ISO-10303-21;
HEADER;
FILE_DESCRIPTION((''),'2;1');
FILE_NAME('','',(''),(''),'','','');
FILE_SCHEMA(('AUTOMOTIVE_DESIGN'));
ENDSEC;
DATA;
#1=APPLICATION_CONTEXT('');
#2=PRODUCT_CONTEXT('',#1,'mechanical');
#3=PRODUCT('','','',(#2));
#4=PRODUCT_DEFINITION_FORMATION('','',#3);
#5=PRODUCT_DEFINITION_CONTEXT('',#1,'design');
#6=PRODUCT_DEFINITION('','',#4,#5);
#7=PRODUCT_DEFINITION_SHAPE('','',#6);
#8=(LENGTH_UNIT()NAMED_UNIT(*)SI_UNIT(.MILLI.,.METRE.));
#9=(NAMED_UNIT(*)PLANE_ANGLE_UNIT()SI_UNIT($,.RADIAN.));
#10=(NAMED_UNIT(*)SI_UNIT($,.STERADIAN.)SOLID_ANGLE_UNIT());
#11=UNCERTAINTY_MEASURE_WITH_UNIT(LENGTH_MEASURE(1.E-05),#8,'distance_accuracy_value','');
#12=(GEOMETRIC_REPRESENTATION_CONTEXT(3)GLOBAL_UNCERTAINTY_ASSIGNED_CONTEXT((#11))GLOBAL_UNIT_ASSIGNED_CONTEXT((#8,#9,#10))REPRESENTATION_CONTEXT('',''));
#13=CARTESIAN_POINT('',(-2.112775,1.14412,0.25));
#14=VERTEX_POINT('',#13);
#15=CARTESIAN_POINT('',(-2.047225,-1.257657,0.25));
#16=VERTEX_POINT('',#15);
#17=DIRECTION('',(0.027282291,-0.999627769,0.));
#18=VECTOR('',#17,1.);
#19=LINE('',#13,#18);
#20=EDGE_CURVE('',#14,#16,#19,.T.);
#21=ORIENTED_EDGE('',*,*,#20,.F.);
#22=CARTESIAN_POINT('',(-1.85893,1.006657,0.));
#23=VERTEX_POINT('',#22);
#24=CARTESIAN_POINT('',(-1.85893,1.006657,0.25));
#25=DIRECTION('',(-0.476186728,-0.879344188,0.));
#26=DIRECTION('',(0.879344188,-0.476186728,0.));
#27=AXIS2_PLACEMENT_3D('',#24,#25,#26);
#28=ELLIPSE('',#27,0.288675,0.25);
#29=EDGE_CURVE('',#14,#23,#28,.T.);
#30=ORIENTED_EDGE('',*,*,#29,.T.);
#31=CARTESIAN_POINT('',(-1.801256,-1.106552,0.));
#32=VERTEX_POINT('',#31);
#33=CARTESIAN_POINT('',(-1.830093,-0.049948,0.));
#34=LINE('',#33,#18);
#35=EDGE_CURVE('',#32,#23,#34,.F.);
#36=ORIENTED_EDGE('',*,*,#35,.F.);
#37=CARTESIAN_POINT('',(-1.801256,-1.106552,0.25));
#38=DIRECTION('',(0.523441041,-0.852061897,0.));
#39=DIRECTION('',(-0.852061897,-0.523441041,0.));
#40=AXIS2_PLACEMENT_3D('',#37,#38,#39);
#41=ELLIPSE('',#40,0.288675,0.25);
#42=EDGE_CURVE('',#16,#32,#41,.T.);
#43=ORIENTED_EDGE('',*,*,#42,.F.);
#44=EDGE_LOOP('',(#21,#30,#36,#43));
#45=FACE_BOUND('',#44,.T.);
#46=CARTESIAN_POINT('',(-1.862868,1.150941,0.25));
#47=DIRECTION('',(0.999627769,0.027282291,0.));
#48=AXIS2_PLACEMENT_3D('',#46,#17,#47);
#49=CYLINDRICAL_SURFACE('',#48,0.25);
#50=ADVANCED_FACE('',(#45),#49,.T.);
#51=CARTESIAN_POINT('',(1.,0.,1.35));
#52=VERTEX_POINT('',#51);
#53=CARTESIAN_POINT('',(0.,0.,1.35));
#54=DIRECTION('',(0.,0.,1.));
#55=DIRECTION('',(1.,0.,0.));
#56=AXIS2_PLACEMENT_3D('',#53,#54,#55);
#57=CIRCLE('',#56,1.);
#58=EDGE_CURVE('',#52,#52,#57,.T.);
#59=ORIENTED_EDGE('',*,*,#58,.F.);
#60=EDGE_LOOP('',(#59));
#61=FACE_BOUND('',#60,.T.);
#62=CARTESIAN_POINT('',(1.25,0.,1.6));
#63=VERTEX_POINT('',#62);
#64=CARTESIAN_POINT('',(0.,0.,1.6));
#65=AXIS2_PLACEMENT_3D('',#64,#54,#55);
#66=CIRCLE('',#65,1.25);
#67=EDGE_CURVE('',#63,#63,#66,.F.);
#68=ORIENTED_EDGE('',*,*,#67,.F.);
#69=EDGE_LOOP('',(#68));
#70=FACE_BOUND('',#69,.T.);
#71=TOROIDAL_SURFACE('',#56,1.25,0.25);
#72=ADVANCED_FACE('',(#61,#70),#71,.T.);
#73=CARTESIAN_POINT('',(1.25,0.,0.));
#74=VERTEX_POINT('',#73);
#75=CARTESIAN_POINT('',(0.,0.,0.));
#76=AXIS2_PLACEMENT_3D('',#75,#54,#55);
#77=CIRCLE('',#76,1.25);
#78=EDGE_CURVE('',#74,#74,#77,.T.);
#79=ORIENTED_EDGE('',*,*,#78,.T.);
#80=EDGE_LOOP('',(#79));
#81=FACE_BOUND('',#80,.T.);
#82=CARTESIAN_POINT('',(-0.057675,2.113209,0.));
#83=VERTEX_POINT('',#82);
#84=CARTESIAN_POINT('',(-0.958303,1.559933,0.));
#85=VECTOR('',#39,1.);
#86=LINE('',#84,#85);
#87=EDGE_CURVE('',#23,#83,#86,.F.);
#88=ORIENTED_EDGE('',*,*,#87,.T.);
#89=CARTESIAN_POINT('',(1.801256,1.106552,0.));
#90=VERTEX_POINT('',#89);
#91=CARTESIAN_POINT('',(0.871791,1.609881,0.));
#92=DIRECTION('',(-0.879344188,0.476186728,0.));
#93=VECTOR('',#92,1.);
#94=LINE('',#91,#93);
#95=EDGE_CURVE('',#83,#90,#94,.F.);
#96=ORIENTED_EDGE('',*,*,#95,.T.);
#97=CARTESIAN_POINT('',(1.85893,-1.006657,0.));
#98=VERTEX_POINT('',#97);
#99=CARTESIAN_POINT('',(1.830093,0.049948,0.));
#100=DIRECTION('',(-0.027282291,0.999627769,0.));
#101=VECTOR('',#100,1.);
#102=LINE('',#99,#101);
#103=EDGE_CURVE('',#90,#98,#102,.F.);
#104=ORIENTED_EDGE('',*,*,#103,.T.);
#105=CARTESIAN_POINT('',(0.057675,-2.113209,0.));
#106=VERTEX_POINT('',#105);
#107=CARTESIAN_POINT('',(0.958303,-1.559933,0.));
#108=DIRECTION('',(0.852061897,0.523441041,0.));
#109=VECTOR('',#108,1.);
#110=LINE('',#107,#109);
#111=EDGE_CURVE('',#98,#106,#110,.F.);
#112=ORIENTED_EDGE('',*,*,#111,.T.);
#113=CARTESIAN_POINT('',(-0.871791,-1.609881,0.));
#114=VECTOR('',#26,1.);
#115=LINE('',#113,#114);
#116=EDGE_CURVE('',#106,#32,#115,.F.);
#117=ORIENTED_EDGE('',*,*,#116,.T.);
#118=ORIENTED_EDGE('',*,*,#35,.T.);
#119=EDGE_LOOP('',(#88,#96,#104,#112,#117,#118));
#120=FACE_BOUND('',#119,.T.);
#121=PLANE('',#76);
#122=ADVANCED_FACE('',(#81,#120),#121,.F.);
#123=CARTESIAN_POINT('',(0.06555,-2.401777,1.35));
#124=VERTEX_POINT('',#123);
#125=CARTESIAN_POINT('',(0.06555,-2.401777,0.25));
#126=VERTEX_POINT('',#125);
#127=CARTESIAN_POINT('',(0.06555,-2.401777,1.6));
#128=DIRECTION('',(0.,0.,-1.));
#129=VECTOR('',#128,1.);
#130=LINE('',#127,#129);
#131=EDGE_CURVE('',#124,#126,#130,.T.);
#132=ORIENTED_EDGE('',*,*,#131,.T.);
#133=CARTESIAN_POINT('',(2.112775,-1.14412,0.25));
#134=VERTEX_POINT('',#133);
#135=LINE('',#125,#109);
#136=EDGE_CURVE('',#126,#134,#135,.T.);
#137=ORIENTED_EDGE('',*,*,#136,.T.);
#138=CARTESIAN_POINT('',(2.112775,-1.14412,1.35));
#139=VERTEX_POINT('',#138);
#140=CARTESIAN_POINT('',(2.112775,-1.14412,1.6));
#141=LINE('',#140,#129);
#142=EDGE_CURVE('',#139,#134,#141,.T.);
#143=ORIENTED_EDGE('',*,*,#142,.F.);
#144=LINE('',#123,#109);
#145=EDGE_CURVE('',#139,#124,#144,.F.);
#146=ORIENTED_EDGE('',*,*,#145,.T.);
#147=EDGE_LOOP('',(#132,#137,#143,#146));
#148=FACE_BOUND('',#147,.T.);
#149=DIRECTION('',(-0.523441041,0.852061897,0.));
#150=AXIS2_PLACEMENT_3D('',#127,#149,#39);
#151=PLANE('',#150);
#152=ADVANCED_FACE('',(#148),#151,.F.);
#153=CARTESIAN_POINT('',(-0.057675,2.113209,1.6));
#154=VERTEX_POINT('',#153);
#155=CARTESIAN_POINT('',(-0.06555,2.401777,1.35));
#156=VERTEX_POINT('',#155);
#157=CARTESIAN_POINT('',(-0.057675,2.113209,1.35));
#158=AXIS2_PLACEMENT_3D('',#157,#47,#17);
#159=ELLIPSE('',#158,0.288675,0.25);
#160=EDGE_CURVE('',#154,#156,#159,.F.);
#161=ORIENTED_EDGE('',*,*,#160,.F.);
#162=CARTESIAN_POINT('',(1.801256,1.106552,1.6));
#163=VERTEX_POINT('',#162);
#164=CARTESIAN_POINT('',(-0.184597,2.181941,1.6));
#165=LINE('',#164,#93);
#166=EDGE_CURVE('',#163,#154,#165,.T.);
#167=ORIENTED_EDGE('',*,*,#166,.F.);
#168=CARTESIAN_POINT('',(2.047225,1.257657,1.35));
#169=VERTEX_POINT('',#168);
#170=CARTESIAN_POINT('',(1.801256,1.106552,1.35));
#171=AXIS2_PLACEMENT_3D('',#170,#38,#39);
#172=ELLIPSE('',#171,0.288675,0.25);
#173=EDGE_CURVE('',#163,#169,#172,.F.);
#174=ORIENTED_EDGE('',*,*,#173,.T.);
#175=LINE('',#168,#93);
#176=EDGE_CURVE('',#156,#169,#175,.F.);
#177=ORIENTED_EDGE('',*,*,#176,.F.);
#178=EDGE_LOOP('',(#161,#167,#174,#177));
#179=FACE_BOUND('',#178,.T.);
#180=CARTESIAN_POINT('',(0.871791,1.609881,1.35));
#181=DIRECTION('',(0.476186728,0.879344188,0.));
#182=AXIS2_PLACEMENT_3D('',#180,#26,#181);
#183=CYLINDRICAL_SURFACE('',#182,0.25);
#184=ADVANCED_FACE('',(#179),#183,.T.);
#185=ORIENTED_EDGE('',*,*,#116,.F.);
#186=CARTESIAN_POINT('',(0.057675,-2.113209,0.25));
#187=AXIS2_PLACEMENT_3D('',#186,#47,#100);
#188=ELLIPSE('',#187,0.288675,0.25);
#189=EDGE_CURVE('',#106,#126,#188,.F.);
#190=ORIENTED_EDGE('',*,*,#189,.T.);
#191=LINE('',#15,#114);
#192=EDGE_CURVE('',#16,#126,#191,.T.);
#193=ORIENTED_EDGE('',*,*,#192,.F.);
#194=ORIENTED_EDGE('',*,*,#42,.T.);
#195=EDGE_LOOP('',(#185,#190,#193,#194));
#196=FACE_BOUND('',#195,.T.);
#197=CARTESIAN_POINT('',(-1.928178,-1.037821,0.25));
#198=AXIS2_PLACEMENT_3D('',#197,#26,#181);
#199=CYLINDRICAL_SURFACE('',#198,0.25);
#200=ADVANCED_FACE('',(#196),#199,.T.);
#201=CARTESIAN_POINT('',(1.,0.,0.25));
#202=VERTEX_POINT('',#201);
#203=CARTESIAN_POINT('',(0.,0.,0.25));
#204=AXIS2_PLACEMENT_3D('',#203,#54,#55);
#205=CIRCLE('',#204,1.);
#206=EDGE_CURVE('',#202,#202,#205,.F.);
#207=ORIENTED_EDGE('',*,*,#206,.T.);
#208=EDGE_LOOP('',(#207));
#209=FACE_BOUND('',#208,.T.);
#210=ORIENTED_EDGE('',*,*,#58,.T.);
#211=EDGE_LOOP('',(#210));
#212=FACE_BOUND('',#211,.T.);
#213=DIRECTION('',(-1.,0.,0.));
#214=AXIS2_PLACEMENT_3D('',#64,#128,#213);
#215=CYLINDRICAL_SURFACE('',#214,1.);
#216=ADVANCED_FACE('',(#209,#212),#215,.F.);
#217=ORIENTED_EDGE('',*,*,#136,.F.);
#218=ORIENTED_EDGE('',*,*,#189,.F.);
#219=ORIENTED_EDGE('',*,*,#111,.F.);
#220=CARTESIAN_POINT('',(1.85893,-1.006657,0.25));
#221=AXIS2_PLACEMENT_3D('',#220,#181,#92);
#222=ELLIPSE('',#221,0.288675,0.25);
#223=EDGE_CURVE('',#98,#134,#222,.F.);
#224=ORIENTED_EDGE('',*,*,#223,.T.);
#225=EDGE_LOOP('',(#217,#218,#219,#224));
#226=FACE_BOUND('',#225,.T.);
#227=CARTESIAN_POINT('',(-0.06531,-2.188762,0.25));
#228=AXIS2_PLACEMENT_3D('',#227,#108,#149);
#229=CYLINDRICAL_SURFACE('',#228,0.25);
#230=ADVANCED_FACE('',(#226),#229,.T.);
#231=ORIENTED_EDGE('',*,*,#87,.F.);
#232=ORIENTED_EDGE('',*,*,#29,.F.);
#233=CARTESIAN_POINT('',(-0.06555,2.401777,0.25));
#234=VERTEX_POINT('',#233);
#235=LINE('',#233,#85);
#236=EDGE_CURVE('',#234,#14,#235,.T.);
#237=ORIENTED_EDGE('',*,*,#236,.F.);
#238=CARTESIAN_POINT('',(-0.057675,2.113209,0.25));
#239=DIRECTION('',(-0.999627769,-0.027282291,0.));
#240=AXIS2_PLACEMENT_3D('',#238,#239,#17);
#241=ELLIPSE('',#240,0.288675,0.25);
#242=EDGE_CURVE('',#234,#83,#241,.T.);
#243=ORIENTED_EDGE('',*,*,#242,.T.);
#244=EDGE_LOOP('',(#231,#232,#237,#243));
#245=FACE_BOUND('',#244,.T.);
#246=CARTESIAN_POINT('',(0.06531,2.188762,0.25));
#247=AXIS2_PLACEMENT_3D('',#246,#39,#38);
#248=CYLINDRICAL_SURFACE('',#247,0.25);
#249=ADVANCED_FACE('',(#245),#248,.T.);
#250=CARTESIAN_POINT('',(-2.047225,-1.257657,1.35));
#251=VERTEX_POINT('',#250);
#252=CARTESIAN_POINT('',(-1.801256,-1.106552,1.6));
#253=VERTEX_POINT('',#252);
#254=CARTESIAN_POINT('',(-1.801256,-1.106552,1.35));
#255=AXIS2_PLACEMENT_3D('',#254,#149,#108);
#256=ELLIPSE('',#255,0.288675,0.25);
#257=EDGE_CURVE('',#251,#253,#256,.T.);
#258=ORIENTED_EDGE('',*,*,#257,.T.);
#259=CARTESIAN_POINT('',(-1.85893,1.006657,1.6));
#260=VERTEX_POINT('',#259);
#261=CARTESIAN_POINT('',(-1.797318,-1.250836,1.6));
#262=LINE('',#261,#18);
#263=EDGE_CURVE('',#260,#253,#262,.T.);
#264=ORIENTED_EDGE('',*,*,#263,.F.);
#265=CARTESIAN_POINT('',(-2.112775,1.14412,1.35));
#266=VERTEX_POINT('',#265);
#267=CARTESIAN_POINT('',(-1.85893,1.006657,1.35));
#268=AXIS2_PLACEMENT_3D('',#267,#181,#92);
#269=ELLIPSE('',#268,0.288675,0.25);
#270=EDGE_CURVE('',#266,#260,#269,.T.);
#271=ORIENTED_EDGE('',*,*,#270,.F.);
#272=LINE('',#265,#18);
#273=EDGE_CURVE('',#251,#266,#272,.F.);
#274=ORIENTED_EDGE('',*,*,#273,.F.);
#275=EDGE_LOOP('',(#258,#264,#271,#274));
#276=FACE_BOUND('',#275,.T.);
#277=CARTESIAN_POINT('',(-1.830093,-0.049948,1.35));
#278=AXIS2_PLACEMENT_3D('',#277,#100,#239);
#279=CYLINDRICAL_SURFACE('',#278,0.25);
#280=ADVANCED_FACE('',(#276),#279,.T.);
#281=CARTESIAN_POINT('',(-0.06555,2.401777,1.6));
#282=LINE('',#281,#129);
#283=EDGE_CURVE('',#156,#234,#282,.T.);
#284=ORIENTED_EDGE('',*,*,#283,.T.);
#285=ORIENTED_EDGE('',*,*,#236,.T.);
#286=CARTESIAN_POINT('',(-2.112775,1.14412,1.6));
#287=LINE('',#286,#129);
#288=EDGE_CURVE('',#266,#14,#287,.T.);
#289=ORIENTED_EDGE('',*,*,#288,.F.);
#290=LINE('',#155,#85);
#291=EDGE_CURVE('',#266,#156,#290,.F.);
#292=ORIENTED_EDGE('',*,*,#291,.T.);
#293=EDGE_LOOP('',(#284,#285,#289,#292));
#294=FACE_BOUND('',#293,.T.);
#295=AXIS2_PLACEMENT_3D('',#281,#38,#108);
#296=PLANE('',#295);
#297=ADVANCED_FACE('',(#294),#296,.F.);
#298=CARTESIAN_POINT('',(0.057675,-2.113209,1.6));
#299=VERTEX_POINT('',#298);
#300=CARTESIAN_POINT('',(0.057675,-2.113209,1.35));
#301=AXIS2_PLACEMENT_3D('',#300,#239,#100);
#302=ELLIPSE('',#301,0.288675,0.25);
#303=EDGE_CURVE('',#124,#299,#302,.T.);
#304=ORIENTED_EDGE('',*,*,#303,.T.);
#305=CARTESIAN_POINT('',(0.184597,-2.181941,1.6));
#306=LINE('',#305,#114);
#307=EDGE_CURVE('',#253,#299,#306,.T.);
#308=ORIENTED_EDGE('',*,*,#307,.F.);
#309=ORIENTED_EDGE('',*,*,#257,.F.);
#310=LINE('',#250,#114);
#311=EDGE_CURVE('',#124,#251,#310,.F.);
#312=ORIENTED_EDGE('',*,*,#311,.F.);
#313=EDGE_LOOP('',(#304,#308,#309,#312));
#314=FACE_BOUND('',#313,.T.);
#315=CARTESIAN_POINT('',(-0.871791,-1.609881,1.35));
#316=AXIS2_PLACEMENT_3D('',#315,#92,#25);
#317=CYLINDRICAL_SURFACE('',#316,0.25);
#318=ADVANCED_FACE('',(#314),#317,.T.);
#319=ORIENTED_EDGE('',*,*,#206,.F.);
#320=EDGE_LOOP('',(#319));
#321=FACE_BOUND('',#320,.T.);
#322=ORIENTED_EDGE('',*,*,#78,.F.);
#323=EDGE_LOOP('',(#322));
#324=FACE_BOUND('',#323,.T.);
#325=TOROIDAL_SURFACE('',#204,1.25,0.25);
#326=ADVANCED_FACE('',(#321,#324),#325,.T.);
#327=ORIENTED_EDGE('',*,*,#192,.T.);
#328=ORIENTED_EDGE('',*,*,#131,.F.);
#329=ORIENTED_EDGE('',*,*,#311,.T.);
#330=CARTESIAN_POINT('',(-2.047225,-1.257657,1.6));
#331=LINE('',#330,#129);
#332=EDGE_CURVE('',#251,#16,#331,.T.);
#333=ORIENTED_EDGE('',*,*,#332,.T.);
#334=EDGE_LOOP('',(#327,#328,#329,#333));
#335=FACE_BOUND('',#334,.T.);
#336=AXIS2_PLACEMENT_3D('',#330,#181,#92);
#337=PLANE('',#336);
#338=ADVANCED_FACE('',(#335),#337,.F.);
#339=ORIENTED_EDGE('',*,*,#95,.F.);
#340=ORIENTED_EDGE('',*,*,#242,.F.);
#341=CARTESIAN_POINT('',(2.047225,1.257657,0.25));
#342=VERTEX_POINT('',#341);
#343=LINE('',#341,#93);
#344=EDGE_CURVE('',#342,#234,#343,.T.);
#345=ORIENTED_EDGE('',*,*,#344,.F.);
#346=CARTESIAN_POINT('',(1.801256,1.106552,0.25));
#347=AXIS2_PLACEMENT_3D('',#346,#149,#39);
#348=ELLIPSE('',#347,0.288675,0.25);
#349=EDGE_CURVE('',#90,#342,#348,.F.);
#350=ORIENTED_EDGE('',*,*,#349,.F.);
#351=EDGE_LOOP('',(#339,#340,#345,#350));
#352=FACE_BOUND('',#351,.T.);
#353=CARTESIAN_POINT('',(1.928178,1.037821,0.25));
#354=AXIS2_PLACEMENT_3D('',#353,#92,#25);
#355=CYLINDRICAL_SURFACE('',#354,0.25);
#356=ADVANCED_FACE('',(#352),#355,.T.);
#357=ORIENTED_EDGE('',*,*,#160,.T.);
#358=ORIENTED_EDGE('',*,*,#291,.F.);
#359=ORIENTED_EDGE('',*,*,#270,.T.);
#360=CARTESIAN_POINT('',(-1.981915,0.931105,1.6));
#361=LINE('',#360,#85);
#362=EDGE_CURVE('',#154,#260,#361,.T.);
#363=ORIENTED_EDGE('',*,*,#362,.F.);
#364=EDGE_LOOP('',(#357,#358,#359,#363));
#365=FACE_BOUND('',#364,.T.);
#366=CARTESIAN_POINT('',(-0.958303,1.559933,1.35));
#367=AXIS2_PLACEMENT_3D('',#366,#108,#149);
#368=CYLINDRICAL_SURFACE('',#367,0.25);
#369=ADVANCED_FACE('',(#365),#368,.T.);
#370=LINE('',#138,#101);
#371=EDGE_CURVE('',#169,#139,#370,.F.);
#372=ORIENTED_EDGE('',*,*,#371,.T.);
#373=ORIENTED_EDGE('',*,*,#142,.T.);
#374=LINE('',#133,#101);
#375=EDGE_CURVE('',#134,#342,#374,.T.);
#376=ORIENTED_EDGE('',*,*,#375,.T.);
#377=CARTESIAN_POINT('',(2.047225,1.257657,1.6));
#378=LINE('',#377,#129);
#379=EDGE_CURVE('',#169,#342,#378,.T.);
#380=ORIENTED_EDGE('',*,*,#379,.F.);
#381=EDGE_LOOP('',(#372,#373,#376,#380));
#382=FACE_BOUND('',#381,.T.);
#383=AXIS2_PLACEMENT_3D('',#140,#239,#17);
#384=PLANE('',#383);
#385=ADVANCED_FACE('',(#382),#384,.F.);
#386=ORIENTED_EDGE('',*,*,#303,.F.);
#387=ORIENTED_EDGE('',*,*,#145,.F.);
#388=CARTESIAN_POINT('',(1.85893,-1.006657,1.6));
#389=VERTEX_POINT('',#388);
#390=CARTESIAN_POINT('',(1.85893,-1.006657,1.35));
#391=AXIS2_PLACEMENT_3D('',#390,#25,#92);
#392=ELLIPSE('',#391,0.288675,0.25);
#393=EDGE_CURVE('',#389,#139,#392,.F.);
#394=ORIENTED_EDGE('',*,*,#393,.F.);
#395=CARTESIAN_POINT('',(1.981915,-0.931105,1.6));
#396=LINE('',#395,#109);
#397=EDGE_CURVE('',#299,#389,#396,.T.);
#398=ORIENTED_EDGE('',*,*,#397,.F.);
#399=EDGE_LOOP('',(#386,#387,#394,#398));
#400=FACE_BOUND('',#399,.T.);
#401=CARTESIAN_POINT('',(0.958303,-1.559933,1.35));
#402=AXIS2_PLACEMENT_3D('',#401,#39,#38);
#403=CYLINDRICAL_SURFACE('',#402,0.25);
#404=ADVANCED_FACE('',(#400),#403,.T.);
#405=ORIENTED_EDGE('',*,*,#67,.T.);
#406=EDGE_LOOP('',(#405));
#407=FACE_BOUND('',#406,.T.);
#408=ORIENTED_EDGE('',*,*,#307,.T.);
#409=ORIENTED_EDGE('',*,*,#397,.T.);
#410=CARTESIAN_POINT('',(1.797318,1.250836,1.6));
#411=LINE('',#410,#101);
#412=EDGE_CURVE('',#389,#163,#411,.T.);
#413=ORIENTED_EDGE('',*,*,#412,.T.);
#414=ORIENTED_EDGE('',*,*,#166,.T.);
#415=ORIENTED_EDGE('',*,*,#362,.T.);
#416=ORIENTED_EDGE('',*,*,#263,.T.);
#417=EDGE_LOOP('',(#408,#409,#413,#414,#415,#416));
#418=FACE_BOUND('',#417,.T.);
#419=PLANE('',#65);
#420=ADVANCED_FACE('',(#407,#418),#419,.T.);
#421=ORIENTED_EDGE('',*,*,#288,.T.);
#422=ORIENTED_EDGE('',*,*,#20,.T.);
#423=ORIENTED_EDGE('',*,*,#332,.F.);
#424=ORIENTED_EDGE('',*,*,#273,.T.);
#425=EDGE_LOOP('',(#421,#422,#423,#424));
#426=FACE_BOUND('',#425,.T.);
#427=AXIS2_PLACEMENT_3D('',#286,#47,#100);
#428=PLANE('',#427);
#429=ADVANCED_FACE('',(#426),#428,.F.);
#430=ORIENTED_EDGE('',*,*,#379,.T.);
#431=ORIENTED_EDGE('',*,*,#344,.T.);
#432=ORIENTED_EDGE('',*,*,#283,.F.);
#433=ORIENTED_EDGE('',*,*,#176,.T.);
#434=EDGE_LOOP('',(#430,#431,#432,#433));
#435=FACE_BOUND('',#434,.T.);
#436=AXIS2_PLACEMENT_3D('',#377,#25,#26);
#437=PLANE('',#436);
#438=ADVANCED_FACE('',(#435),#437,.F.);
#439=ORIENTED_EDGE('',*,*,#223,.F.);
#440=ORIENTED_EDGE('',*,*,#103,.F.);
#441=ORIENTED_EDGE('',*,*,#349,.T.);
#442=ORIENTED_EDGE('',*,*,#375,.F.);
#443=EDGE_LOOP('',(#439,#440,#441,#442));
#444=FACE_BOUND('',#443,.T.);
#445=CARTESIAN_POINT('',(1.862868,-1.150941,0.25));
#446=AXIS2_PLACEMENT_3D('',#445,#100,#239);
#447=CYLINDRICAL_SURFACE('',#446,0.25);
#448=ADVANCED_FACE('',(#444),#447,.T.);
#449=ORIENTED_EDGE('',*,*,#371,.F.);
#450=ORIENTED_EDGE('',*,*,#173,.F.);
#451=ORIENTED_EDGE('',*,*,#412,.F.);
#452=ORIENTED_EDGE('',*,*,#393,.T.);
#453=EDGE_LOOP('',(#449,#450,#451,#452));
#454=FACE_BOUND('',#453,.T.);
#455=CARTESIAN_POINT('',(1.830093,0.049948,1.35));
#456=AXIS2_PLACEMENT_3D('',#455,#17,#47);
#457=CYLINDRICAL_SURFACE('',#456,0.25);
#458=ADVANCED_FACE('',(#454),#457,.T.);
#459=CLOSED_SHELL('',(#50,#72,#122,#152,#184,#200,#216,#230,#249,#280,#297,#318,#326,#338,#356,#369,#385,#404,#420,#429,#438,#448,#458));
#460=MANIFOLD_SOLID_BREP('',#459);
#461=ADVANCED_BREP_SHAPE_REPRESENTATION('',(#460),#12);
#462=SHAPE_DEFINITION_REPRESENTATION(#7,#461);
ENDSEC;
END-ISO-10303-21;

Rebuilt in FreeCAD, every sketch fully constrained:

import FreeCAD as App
import Part
import Sketcher
Q = App.Units.Quantity


def edges_at(feature, points):
    """Names of the edges that pass closest to the given points."""
    edges = feature.Shape.Edges
    near = lambda p: min(range(len(edges)), key=lambda i: edges[i].distToShape(Part.Vertex(*p))[0])
    return sorted({f"Edge{near(p) + 1}" for p in points})


def add_polygon(sketch, points):
    """Adds a closed chain of lines whose ends are joined by coincident constraints."""
    first, n = sketch.GeometryCount, len(points)
    for a, b in zip(points, points[1:] + points[:1]):
        sketch.addGeometry(Part.LineSegment(App.Vector(*a, 0), App.Vector(*b, 0)), False)
    for i in range(n):
        sketch.addConstraint(Sketcher.Constraint("Coincident", first + i, 2, first + (i + 1) % n, 1))

doc = App.newDocument("Part")
body = doc.addObject("PartDesign::Body", "Body")

# Sketch on XY plane
sketch1 = doc.addObject("Sketcher::SketchObject", "Sketch")
body.addObject(sketch1)
sketch1.AttachmentSupport = (doc.XY_Plane, [""])
sketch1.MapMode = "FlatFace"
add_polygon(sketch1, [(-2, -1.3), (0.1, -2.4), (2.1, -1.1), (2, 1.3), (-0.1, 2.4), (-2.1, 1.1)])  # lines 0-5
sketch1.addGeometry(Part.Circle(App.Vector(0, 0, 0), App.Vector(0, 0, 1), 1), False)  # 6
sketch1.addConstraint(Sketcher.Constraint("Coincident", 6, 3, -1, 1))
sketch1.addConstraint(Sketcher.Constraint("Symmetric", 0, 2, 3, 2, -1, 1))
sketch1.addConstraint(Sketcher.Constraint("Symmetric", 1, 2, 4, 2, -1, 1))
sketch1.addConstraint(Sketcher.Constraint("Symmetric", 2, 2, 5, 2, -1, 1))
sketch1.addConstraint(Sketcher.Constraint("Equal", 0, 1))
sketch1.addConstraint(Sketcher.Constraint("Equal", 1, 2))
sketch1.addConstraint(Sketcher.Constraint("Diameter", 6, Q("2 mm")))
sketch1.addConstraint(Sketcher.Constraint("DistanceX", 4, 2, 2, 2, Q("4.16 mm")))
sketch1.addConstraint(Sketcher.Constraint("DistanceX", 3, 2, 0, 2, Q("0.131101 mm")))
sketch1.addConstraint(Sketcher.Constraint("Distance", 0, Q("2.402671 mm")))
sketch1.addConstraint(Sketcher.Constraint("DistanceY", 1, 2, -1, 1, Q("1.14412 mm")))
pad1 = doc.addObject("PartDesign::Pad", "Pad")
body.addObject(pad1)
pad1.Profile = sketch1
pad1.Length = 1.6
doc.recompute()

fillet = doc.addObject("PartDesign::Fillet", "Fillet")
body.addObject(fillet)
fillet.Base = (pad1, edges_at(pad1, [
    (1.089, -1.773, 1.6),
    (2.08, 0.057, 1.6),
    (-1, 0, 0),
    (-1, 0, 1.6),
    (0.991, 1.83, 1.6),
    (-1.089, 1.773, 1.6),
    (-2.08, -0.057, 1.6),
    (-1.089, 1.773, 0),
    (0.991, 1.83, 0),
    (2.08, 0.057, 0),
    (1.089, -1.773, 0),
    (-0.991, -1.83, 0),
    (-2.08, -0.057, 0),
    (-0.991, -1.83, 1.6),
]))
fillet.Radius = 0.25

doc.recompute()
